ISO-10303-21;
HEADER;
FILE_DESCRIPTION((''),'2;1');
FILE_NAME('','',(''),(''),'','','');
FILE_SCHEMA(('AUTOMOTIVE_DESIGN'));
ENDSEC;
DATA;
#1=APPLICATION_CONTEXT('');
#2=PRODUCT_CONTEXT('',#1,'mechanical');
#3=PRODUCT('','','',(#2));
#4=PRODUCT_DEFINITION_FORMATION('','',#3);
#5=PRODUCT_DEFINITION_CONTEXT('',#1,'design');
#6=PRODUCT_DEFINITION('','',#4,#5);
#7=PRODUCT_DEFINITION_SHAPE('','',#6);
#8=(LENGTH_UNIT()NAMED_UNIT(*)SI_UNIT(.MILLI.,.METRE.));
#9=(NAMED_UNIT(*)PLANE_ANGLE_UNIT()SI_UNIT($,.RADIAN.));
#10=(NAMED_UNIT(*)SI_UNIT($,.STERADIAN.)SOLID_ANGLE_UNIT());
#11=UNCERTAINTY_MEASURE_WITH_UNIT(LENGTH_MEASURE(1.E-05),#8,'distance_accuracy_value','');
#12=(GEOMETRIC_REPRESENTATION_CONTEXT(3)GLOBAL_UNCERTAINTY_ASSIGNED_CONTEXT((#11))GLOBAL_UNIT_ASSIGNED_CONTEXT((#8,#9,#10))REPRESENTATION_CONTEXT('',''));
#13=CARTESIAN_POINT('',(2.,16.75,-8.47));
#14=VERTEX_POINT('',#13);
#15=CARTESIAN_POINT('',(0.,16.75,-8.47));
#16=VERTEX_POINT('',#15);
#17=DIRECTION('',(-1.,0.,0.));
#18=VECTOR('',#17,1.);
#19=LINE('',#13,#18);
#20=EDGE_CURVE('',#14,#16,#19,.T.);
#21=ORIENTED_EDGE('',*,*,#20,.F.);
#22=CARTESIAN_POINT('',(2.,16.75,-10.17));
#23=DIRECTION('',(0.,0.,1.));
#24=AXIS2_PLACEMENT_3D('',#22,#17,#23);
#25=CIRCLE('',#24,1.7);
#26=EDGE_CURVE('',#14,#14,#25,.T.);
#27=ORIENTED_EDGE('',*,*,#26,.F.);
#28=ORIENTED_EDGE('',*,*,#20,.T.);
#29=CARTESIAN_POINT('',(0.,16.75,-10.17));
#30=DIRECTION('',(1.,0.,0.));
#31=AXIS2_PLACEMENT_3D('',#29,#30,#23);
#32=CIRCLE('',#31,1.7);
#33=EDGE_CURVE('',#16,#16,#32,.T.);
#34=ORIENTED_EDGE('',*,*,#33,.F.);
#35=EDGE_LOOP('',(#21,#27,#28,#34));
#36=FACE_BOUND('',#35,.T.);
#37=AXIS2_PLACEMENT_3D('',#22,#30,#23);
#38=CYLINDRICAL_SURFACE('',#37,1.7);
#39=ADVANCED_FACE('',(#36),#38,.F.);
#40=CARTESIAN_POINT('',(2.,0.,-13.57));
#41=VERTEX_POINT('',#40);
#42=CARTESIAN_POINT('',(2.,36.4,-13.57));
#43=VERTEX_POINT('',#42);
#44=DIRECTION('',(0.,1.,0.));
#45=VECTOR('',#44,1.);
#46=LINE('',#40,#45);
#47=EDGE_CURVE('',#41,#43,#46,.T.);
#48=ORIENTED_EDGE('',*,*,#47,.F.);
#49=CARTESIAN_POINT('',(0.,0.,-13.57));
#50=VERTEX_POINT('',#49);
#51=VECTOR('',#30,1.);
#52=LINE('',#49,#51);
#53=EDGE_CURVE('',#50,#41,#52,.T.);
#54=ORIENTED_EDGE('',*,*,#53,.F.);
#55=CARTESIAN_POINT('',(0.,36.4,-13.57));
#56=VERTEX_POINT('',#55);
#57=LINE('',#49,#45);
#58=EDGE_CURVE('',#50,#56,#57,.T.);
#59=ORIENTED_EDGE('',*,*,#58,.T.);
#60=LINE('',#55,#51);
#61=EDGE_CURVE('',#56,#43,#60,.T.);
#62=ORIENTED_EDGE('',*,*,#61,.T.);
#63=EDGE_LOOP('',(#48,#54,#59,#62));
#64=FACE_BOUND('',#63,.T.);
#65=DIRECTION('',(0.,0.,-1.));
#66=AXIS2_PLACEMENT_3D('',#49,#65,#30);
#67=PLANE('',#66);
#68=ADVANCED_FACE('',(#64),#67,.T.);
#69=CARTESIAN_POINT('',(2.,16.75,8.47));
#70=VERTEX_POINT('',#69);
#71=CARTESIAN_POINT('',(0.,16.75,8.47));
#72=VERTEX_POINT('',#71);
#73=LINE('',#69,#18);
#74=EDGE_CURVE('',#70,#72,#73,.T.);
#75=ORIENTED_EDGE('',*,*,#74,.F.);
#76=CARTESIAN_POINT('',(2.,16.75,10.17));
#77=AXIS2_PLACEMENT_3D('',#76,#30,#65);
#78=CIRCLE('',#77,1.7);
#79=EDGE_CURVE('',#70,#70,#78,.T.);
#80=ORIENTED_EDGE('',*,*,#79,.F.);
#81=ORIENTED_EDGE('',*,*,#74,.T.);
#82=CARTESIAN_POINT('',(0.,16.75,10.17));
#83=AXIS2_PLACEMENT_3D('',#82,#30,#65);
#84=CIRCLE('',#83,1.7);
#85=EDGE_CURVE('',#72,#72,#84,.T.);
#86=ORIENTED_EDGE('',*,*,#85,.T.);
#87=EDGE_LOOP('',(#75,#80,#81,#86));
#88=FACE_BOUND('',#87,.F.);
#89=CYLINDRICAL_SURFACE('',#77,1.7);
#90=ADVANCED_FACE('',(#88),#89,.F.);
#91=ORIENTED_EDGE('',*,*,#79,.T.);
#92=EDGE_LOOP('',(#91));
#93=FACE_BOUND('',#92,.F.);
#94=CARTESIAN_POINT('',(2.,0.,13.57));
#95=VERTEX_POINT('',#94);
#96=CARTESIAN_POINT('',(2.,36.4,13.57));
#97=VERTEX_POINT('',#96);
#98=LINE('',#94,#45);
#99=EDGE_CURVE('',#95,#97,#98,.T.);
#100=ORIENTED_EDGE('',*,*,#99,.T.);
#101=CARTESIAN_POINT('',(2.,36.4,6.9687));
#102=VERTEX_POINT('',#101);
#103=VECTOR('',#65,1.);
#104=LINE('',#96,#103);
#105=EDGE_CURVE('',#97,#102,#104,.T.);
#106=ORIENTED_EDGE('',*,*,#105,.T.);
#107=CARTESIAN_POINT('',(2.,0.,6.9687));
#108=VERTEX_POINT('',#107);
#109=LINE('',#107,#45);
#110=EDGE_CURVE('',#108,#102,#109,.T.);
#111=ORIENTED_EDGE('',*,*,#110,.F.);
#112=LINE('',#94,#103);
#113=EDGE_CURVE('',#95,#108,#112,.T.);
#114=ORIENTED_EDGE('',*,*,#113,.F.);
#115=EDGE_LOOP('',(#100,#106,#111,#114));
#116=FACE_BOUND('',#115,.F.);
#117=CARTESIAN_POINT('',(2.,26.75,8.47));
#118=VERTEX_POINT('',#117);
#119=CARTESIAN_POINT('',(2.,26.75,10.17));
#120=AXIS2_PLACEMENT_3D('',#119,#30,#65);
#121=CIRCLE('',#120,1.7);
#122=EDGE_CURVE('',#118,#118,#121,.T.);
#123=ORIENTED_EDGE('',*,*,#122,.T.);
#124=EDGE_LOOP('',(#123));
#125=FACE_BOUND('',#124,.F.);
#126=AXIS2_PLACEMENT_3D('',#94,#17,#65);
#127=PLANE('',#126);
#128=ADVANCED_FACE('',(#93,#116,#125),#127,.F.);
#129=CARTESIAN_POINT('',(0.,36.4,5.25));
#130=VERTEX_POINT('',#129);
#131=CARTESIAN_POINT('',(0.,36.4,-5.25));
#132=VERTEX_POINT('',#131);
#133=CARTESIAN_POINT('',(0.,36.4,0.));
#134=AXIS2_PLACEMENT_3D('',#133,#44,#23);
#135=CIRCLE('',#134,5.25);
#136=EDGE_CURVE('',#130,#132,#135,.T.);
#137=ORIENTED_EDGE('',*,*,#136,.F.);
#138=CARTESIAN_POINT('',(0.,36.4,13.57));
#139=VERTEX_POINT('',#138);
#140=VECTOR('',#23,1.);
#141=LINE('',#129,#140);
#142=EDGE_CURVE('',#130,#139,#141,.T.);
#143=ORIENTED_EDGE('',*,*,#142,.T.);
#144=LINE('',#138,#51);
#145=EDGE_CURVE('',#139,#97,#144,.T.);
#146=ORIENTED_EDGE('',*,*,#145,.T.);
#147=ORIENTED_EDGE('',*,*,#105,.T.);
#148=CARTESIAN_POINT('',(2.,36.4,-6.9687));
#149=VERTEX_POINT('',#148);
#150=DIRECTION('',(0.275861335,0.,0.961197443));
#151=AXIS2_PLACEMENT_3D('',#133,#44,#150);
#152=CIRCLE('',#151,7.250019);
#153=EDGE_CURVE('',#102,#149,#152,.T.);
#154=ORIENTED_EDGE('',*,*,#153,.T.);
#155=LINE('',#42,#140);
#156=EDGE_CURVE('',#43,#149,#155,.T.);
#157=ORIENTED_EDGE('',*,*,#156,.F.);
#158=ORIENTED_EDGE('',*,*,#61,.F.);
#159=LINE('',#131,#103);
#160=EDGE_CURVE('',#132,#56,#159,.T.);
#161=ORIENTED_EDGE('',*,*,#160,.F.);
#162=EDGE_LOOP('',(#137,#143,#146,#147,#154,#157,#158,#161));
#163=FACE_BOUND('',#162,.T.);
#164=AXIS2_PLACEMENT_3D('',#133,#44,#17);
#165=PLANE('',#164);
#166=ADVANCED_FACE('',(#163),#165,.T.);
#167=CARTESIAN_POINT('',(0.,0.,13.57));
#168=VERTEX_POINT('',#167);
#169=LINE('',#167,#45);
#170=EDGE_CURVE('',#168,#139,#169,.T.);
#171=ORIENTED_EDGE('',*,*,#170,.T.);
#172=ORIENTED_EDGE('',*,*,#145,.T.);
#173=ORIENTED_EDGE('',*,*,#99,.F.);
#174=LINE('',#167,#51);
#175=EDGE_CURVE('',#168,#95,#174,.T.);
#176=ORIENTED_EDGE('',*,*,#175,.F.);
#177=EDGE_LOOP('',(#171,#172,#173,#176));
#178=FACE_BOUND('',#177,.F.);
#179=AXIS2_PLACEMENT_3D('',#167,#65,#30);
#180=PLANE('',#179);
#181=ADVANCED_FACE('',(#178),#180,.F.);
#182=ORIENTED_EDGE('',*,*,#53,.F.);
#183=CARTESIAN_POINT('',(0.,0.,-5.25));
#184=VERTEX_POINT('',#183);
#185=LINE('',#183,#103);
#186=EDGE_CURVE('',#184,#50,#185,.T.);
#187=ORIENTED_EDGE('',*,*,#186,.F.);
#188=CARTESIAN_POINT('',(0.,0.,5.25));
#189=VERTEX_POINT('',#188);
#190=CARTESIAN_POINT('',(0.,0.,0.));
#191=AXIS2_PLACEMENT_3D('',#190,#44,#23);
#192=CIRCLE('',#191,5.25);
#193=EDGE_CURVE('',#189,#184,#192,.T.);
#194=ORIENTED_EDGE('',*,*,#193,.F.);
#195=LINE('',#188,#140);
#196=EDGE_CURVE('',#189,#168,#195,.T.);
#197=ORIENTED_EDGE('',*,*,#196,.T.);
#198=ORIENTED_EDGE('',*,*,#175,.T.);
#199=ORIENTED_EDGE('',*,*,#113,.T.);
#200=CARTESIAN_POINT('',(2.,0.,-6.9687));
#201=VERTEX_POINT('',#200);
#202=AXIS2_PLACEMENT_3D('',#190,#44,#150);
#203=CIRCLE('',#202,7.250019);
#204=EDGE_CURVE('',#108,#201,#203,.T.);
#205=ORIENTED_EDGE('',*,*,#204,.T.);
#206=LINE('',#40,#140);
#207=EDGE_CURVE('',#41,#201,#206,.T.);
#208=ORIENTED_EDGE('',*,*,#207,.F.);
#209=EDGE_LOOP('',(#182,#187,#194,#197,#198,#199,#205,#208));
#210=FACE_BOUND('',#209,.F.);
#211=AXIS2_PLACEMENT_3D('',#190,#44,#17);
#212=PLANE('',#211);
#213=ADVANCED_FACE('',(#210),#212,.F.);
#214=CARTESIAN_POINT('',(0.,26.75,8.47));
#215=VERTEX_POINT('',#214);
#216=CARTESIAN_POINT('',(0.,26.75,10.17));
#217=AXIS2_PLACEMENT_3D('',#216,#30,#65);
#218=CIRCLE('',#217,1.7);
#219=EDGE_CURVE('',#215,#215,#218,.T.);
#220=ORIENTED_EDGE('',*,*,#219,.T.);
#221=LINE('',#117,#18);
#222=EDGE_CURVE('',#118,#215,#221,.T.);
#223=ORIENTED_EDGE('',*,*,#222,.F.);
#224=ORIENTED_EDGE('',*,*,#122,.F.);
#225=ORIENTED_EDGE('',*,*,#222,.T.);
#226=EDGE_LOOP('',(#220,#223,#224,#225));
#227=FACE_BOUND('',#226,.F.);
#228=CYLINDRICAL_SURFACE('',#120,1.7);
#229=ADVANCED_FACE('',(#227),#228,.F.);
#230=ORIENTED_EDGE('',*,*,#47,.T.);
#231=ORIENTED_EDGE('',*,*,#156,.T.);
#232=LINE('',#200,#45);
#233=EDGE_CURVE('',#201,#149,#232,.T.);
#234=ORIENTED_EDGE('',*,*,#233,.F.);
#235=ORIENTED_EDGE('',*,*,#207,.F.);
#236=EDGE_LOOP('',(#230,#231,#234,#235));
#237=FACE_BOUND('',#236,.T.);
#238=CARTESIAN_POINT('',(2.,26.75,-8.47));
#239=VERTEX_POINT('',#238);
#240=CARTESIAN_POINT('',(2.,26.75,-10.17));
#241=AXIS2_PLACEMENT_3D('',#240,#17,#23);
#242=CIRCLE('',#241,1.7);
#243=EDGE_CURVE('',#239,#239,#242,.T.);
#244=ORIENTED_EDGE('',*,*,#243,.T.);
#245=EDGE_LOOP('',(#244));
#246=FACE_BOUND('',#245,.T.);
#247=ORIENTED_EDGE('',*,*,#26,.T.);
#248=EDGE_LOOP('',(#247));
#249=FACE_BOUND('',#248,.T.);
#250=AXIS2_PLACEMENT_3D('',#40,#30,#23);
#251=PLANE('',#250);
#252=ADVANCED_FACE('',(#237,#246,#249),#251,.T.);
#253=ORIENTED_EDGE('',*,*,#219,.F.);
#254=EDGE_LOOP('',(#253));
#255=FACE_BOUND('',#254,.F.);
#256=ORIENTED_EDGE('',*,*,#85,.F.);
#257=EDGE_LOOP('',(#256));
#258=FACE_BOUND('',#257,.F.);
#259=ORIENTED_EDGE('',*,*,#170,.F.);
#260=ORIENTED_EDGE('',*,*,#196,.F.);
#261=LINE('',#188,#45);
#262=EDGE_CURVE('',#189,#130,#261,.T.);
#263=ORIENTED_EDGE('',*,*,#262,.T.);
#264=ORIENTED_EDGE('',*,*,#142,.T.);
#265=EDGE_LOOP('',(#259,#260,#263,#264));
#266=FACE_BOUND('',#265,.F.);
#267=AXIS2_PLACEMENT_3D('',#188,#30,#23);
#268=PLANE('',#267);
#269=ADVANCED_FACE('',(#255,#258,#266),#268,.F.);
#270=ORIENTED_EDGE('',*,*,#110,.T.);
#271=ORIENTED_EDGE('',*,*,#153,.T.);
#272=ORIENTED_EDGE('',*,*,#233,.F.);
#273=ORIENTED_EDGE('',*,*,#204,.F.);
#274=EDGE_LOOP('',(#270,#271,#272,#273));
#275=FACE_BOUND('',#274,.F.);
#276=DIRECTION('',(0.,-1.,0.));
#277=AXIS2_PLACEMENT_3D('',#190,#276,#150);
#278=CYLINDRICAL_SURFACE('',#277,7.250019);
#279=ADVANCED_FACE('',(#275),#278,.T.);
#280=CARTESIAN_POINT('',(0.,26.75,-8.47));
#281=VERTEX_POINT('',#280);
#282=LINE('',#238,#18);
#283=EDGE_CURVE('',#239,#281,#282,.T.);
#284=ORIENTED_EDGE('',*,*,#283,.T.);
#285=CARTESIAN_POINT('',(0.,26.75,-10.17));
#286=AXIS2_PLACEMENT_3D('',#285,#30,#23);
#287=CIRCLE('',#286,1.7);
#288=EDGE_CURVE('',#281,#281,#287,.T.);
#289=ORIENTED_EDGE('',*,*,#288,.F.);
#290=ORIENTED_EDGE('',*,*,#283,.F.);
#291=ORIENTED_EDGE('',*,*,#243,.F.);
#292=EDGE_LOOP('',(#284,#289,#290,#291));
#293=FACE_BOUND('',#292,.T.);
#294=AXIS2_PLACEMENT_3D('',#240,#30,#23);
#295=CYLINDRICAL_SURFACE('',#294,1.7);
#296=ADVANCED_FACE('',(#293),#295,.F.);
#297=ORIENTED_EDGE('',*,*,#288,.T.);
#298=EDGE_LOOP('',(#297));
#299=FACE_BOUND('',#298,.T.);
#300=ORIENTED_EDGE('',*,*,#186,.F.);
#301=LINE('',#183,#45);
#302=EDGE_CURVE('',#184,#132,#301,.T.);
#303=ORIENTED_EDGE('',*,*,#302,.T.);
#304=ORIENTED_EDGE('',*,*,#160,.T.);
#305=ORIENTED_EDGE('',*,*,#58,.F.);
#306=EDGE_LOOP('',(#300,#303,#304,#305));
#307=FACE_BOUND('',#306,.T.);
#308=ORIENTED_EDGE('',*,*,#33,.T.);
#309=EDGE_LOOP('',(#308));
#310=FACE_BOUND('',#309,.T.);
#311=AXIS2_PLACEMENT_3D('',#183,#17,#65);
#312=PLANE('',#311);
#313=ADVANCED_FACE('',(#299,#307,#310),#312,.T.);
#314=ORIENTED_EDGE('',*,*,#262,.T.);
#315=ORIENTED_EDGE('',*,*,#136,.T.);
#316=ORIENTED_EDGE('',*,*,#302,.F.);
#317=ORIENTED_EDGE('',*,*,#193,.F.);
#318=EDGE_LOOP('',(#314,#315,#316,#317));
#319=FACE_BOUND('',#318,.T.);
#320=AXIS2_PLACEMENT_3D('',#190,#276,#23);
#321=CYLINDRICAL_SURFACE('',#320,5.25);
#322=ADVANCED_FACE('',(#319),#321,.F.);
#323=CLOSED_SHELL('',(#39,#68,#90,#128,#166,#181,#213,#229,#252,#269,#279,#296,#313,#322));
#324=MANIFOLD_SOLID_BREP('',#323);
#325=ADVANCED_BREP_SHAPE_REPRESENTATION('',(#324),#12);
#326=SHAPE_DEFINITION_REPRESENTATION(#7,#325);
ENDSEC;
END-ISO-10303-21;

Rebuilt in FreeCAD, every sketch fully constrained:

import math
import FreeCAD as App
import Part
import Sketcher

V = App.Vector

doc = App.newDocument("Part")
body = doc.addObject("PartDesign::Body", "Body")

# Sketch on XZ plane
sketch1 = body.newObject("Sketcher::SketchObject", "Sketch")
sketch1.AttachmentSupport = (doc.getObject("XZ_Plane"), [""])
sketch1.MapMode = "FlatFace"
sketch1.addGeometry([
    Part.ArcOfCircle(Part.Circle(V(0, 0, 0), V(0, 0, 1), 5.2), math.radians(-90), math.radians(90)),  # 0
    Part.LineSegment(V(0, 5.2, 0), V(0, 13.6, 0)),  # 1
    Part.LineSegment(V(0, 13.6, 0), V(2, 13.6, 0)),  # 2
    Part.LineSegment(V(2, 13.6, 0), V(2, 7, 0)),  # 3
    Part.ArcOfCircle(Part.Circle(V(0, 0, 0), V(0, 0, 1), 7.3), math.radians(-74), math.radians(74)),  # 4
    Part.LineSegment(V(2, -7, 0), V(2, -13.6, 0)),  # 5
    Part.LineSegment(V(2, -13.6, 0), V(0, -13.6, 0)),  # 6
    Part.LineSegment(V(0, -13.6, 0), V(0, -5.2, 0)),  # 7
], False)
sketch1.addConstraint([
    Sketcher.Constraint("Coincident", 0, 2, 1, 1),
    Sketcher.Constraint("Coincident", 1, 2, 2, 1),
    Sketcher.Constraint("Coincident", 2, 2, 3, 1),
    Sketcher.Constraint("Coincident", 3, 2, 4, 2),
    Sketcher.Constraint("Coincident", 4, 1, 5, 1),
    Sketcher.Constraint("Coincident", 5, 2, 6, 1),
    Sketcher.Constraint("Coincident", 6, 2, 7, 1),
    Sketcher.Constraint("Coincident", 7, 2, 0, 1),
    Sketcher.Constraint("Vertical", 1),
    Sketcher.Constraint("Horizontal", 2),
    Sketcher.Constraint("Vertical", 3),
    Sketcher.Constraint("Vertical", 5),
    Sketcher.Constraint("Horizontal", 6),
    Sketcher.Constraint("Vertical", 7),
    Sketcher.Constraint("Coincident", 0, 3, -1, 1),
    Sketcher.Constraint("Coincident", 4, 3, -1, 1),
    Sketcher.Constraint("Symmetric", 1, 2, 6, 2, -1, 1),
    Sketcher.Constraint("PointOnObject", 0, 2, -2),
    Sketcher.Constraint("Vertical", 3, 2, 4, 1),
    Sketcher.Constraint("DistanceX", 2, 1, 2, 2, 2.0),
    Sketcher.Constraint("Radius", 0, 5.25),
    Sketcher.Constraint("Radius", 4, 7.25),
    Sketcher.Constraint("DistanceY", -1, 1, 1, 2, 13.57),
])
pad1 = body.newObject("PartDesign::Pad", "Pad")
pad1.Profile = sketch1
pad1.Length = 36.4
pad1.Reversed = True

# Sketch on YZ plane
sketch2 = body.newObject("Sketcher::SketchObject", "Sketch001")
sketch2.AttachmentSupport = (doc.getObject("YZ_Plane"), [""])
sketch2.MapMode = "FlatFace"
sketch2.AttachmentOffset = App.Placement(V(0, 0, 2), App.Rotation())
sketch2.addGeometry([
    Part.Circle(V(26.8, 10.2, 0), V(0, 0, 1), 1.7),
    Part.Circle(V(16.8, 10.2, 0), V(0, 0, 1), 1.7),
], False)
sketch2.addConstraint([
    Sketcher.Constraint("Equal", 0, 1),
    Sketcher.Constraint("Horizontal", 0, 3, 1, 3),
    Sketcher.Constraint("Diameter", 0, 3.4),
    Sketcher.Constraint("DistanceX", -1, 1, 0, 3, 26.75),
    Sketcher.Constraint("DistanceX", -1, 1, 1, 3, 16.75),
    Sketcher.Constraint("DistanceY", -1, 1, 0, 3, 10.17),
])
pocket1 = body.newObject("PartDesign::Pocket", "Pocket")
pocket1.Profile = sketch2
pocket1.Type = "ThroughAll"
doc.recompute()

mirrored = body.newObject("PartDesign::Mirrored", "Mirrored")
mirrored.Originals = [pocket1]
mirrored.MirrorPlane = (doc.getObject("XY_Plane"), [""])
body.Tip = mirrored

doc.recompute()
